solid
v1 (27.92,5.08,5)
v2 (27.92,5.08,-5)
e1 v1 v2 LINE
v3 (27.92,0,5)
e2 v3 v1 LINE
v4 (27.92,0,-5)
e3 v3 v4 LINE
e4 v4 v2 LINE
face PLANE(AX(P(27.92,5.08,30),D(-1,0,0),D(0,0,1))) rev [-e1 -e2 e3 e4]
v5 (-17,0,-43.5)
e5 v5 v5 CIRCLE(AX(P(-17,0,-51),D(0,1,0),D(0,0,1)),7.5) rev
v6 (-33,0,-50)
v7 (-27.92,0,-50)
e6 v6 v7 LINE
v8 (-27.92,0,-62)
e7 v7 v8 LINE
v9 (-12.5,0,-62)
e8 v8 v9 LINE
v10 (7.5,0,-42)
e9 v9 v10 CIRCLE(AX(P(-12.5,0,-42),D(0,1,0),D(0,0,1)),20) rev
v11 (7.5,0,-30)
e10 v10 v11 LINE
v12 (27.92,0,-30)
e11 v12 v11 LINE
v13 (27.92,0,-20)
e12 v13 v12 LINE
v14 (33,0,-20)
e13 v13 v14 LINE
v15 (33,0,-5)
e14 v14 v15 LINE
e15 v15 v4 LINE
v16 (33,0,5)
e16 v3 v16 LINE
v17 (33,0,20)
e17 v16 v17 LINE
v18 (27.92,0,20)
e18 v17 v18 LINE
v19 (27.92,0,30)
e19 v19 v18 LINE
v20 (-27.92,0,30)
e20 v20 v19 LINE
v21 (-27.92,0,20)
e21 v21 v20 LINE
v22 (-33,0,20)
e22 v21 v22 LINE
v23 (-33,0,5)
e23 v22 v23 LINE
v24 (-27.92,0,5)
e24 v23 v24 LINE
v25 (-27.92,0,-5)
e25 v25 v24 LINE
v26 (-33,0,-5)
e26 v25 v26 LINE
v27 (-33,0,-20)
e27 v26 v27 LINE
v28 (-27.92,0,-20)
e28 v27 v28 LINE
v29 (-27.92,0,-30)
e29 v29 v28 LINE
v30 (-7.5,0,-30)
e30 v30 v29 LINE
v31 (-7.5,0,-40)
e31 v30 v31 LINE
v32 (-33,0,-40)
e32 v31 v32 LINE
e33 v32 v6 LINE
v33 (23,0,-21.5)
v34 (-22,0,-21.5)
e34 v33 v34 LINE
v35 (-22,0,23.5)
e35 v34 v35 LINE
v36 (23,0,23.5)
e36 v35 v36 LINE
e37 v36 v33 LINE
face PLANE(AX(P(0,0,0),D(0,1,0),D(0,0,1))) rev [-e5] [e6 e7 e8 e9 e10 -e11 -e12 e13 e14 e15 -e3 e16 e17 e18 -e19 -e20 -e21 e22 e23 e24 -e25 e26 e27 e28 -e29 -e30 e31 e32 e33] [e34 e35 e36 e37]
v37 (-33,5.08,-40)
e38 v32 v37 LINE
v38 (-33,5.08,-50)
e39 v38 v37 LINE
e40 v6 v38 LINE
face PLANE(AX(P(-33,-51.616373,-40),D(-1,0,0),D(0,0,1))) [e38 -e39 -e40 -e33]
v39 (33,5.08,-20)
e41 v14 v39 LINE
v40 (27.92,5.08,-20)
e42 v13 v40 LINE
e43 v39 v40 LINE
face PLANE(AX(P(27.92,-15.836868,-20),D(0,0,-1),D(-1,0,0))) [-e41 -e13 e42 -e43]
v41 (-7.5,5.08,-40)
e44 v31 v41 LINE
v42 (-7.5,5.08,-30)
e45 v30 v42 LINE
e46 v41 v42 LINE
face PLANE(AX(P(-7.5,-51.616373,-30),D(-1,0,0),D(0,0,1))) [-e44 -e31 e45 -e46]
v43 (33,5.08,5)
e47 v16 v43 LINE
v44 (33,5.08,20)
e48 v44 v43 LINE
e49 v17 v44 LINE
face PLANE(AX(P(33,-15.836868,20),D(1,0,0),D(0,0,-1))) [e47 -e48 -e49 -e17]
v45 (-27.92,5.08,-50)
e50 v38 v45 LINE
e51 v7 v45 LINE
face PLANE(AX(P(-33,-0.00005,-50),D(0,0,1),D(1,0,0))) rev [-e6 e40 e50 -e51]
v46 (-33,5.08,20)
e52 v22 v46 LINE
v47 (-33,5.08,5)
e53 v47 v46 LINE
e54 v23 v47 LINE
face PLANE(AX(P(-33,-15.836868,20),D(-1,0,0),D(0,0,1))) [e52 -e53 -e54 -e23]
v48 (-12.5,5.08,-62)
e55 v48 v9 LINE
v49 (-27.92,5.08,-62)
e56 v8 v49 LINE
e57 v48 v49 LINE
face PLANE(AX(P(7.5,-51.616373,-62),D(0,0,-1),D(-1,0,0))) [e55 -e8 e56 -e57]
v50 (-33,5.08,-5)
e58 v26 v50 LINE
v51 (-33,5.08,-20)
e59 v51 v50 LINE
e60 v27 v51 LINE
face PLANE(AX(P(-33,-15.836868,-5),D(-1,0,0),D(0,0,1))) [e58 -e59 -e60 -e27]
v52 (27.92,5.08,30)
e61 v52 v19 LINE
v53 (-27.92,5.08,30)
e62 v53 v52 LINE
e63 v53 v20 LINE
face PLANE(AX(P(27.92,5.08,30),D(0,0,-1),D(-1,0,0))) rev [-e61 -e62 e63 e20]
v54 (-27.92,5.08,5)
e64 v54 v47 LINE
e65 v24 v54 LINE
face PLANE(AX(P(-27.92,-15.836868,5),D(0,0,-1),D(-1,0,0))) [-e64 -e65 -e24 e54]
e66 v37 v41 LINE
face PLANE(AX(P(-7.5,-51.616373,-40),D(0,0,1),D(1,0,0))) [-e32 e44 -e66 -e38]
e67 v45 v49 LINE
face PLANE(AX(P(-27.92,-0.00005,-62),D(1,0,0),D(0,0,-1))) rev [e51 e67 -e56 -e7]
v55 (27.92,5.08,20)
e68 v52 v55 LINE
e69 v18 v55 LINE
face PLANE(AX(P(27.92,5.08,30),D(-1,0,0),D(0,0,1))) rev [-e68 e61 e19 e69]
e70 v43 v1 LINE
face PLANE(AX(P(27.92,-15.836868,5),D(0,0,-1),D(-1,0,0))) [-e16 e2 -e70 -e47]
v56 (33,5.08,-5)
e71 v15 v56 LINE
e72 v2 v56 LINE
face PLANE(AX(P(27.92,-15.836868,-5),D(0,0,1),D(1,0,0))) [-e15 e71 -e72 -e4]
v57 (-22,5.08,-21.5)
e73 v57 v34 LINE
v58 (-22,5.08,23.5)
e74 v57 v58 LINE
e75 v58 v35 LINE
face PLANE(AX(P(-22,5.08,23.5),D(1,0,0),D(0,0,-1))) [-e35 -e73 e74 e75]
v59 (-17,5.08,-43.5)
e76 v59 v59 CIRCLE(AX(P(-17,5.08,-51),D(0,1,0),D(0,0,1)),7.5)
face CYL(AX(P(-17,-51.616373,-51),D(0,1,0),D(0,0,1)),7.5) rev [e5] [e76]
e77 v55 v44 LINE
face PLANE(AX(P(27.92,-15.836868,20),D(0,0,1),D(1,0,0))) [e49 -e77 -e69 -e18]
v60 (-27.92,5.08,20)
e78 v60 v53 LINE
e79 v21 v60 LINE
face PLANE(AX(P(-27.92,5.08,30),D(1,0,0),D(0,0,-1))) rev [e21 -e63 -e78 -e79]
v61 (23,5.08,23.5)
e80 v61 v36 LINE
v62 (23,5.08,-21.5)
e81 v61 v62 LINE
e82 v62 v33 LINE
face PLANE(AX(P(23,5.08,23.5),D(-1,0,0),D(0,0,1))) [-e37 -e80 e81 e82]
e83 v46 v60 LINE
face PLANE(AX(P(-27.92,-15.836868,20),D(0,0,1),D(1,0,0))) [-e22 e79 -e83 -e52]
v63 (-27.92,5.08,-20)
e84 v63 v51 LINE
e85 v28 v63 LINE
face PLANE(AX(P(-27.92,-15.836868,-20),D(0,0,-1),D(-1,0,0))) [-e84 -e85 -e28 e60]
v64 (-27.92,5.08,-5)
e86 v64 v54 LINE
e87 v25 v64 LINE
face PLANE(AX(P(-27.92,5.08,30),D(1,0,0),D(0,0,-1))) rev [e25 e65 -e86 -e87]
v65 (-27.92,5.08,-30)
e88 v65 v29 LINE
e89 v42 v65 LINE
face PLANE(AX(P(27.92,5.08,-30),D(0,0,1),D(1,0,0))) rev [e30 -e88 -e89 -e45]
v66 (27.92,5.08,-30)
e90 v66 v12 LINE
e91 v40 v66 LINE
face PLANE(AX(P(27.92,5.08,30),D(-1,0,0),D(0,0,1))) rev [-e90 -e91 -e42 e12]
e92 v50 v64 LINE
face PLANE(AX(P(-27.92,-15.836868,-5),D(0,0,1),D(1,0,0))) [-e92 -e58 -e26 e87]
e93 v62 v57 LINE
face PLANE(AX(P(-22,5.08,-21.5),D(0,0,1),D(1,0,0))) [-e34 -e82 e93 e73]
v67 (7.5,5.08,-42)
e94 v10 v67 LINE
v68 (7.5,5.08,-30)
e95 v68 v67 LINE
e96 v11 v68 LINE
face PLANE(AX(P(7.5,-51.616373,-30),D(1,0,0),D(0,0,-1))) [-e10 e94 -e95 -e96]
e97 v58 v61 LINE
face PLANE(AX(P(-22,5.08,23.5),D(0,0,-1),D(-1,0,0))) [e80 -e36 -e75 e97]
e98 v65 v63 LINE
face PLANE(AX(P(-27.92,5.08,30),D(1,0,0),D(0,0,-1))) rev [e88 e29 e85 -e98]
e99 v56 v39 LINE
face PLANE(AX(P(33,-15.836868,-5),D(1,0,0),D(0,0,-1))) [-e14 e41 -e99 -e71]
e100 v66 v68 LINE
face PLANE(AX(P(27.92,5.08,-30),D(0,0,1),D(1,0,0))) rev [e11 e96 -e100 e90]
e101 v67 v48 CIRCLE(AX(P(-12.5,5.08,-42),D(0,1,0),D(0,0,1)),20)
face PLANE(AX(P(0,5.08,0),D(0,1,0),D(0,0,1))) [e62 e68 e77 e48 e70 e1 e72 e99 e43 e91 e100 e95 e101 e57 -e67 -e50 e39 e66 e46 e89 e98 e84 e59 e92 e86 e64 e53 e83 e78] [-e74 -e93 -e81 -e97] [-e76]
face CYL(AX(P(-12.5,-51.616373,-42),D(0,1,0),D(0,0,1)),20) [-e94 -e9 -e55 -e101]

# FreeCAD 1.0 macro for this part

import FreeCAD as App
import Part
import Sketcher


def edges_at(feature, points):
    """Names of the edges that pass closest to the given points."""
    edges = feature.Shape.Edges
    near = lambda p: min(range(len(edges)), key=lambda i: edges[i].distToShape(Part.Vertex(*p))[0])
    return sorted({f"Edge{near(p) + 1}" for p in points})


def add_polygon(sketch, points):
    """Adds a closed chain of lines whose ends are joined by coincident constraints."""
    first, n = sketch.GeometryCount, len(points)
    for a, b in zip(points, points[1:] + points[:1]):
        sketch.addGeometry(Part.LineSegment(App.Vector(*a, 0), App.Vector(*b, 0)), False)
    for i in range(n):
        sketch.addConstraint(Sketcher.Constraint("Coincident", first + i, 2, first + (i + 1) % n, 1))

doc = App.newDocument("Part")
params = doc.addObject("Spreadsheet::Sheet", "Params")
for row, (alias, value) in enumerate([
    ("sketch1_width", "45 mm"),
    ("sketch1_height", "60 mm"),
    ("sketch1_width2", "55.84 mm"),
    ("pad1_length", "5.08 mm"),
    ("sketch2_height", "15 mm"),
    ("sketch2_width", "5.08 mm"),
    ("pad2_length", "5.08 mm"),
    ("sketch3_diameter", "15 mm"),
    ("sketch3_width", "15 mm"),
    ("sketch3_height", "32 mm"),
    ("sketch3_height2", "22 mm"),
    ("sketch3_width2", "40.5 mm"),
    ("pad3_length", "5.08 mm"),
    ("fillet_radius", "20 mm"),
    ("sketch4_height", "12 mm"),
    ("sketch4_width", "5.08 mm"),
], start=1):
    params.set(f"A{row}", alias)
    params.set(f"B{row}", "=" + value)
    params.setAlias(f"B{row}", alias)

body = doc.addObject("PartDesign::Body", "Body")

sketch1 = body.newObject("Sketcher::SketchObject", "Sketch")
sketch1.AttachmentSupport = (doc.getObject("XZ_Plane"), [""])
sketch1.MapMode = "FlatFace"
add_polygon(sketch1, [(-28, -30), (-28, 30), (28, 30), (28, -30)])
add_polygon(sketch1, [(23, 24), (-22, 24), (-22, -22), (23, -22)])
sketch1.addConstraint([
    Sketcher.Constraint("Vertical", 0),
    Sketcher.Constraint("Horizontal", 1),
    Sketcher.Constraint("Vertical", 2),
    Sketcher.Constraint("Horizontal", 3),
    Sketcher.Constraint("Horizontal", 4),
    Sketcher.Constraint("Vertical", 5),
    Sketcher.Constraint("Horizontal", 6),
    Sketcher.Constraint("Vertical", 7),
    Sketcher.Constraint("Symmetric", 0, 2, 2, 2, -1, 1),
    Sketcher.Constraint("Equal", 6, 5),
    Sketcher.Constraint("DistanceX", 4, 2, 4, 1, 45.0),
    Sketcher.Constraint("DistanceY", 0, 1, 0, 2, 60.0),
    Sketcher.Constraint("DistanceX", 4, 2, -1, 1, 22.0),
    Sketcher.Constraint("DistanceX", 1, 1, 1, 2, 55.84),
    Sketcher.Constraint("DistanceY", -1, 1, 4, 2, 23.5),
])
sketch1.setExpression("Constraints[18]", "Params.sketch1_width")
sketch1.setExpression("Constraints[19]", "Params.sketch1_height")
sketch1.setExpression("Constraints[21]", "Params.sketch1_width2")
pad1 = body.newObject("PartDesign::Pad", "Pad")
pad1.Profile = sketch1
pad1.setExpression("Length", "Params.pad1_length")
pad1.Reversed = True

sketch2 = body.newObject("Sketcher::SketchObject", "Sketch001")
sketch2.AttachmentSupport = (doc.getObject("XZ_Plane"), [""])
sketch2.MapMode = "FlatFace"
sketch2.AttachmentOffset = App.Placement(App.Vector(0, 0, -5.08), App.Rotation())
add_polygon(sketch2, [(-33, 5), (-33, 20), (-28, 20), (-28, 5)])
add_polygon(sketch2, [(28, 5), (28, 20), (33, 20), (33, 5)])
add_polygon(sketch2, [(-33, -20), (-33, -5), (-28, -5), (-28, -20)])
add_polygon(sketch2, [(28, -20), (28, -5), (33, -5), (33, -20)])
sketch2.addConstraint([
    Sketcher.Constraint("Vertical", 0),
    Sketcher.Constraint("Horizontal", 1),
    Sketcher.Constraint("Vertical", 2),
    Sketcher.Constraint("Horizontal", 3),
    Sketcher.Constraint("Vertical", 4),
    Sketcher.Constraint("Horizontal", 5),
    Sketcher.Constraint("Vertical", 6),
    Sketcher.Constraint("Horizontal", 7),
    Sketcher.Constraint("Vertical", 8),
    Sketcher.Constraint("Horizontal", 9),
    Sketcher.Constraint("Vertical", 10),
    Sketcher.Constraint("Horizontal", 11),
    Sketcher.Constraint("Vertical", 12),
    Sketcher.Constraint("Horizontal", 13),
    Sketcher.Constraint("Vertical", 14),
    Sketcher.Constraint("Horizontal", 15),
    Sketcher.Constraint("Symmetric", 6, 2, 8, 2, -1, 1),
    Sketcher.Constraint("Symmetric", 4, 2, 10, 2, -1, 1),
    Sketcher.Constraint("Symmetric", 2, 2, 12, 2, -1, 1),
    Sketcher.Constraint("Symmetric", 0, 2, 14, 2, -1, 1),
    Sketcher.Constraint("Symmetric", 1, 2, 4, 2, -2),
    Sketcher.Constraint("Symmetric", 3, 2, 6, 2, -2),
    Sketcher.Constraint("DistanceY", 0, 1, 0, 2, 15.0),
    Sketcher.Constraint("DistanceX", 0, 2, -1, 1, 33.0),
    Sketcher.Constraint("DistanceY", -1, 1, 0, 2, 20.0),
    Sketcher.Constraint("DistanceX", 1, 1, 1, 2, 5.08),
])
sketch2.setExpression("Constraints[38]", "Params.sketch2_height")
sketch2.setExpression("Constraints[41]", "Params.sketch2_width")
pad2 = body.newObject("PartDesign::Pad", "Pad001")
pad2.Profile = sketch2
pad2.setExpression("Length", "Params.pad2_length")

sketch3 = body.newObject("Sketcher::SketchObject", "Sketch002")
sketch3.AttachmentSupport = (doc.getObject("XZ_Plane"), [""])
sketch3.MapMode = "FlatFace"
sketch3.AttachmentOffset = App.Placement(App.Vector(0, 0, -5.08), App.Rotation())
add_polygon(sketch3, [(-8, -30), (8, -30), (8, -62), (-33, -62), (-33, -40), (-8, -40)])
sketch3.addGeometry(Part.Circle(App.Vector(-17, -51, 0), App.Vector(0, 0, 1), 8), False)
sketch3.addConstraint([
    Sketcher.Constraint("Horizontal", 0),
    Sketcher.Constraint("Vertical", 1),
    Sketcher.Constraint("Horizontal", 2),
    Sketcher.Constraint("Vertical", 3),
    Sketcher.Constraint("Horizontal", 4),
    Sketcher.Constraint("Vertical", 5),
    Sketcher.Constraint("Diameter", 6, 15.0),
    Sketcher.Constraint("DistanceX", 0, 1, 0, 2, 15.0),
    Sketcher.Constraint("DistanceY", 1, 2, 1, 1, 32.0),
    Sketcher.Constraint("DistanceY", 3, 1, 3, 2, 22.0),
    Sketcher.Constraint("DistanceX", 2, 2, 2, 1, 40.5),
    Sketcher.Constraint("DistanceX", 6, 3, -1, 1, 17.0),
    Sketcher.Constraint("DistanceY", 6, 3, -1, 1, 51.0),
    Sketcher.Constraint("DistanceY", 0, 2, -1, 1, 30.0),
    Sketcher.Constraint("DistanceX", 2, 2, -1, 1, 33.0),
])
sketch3.setExpression("Constraints[12]", "Params.sketch3_diameter")
sketch3.setExpression("Constraints[13]", "Params.sketch3_width")
sketch3.setExpression("Constraints[14]", "Params.sketch3_height")
sketch3.setExpression("Constraints[15]", "Params.sketch3_height2")
sketch3.setExpression("Constraints[16]", "Params.sketch3_width2")
pad3 = body.newObject("PartDesign::Pad", "Pad002")
pad3.Profile = sketch3
pad3.setExpression("Length", "Params.pad3_length")
doc.recompute()

fillet = body.newObject("PartDesign::Fillet", "Fillet")
fillet.Base = (pad3, edges_at(pad3, [(7.5, 2.54, -62)]))
fillet.setExpression("Radius", "Params.fillet_radius")

sketch4 = body.newObject("Sketcher::SketchObject", "Sketch003")
sketch4.AttachmentSupport = (doc.getObject("XZ_Plane"), [""])
sketch4.MapMode = "FlatFace"
sketch4.AttachmentOffset = App.Placement(App.Vector(0, 0, -5.08), App.Rotation())
add_polygon(sketch4, [(-33, -62), (-33, -50), (-28, -50), (-28, -62)])
sketch4.addConstraint([
    Sketcher.Constraint("Vertical", 0),
    Sketcher.Constraint("Horizontal", 1),
    Sketcher.Constraint("Vertical", 2),
    Sketcher.Constraint("Horizontal", 3),
    Sketcher.Constraint("DistanceY", 0, 1, 0, 2, 12.0),
    Sketcher.Constraint("DistanceX", 0, 2, -1, 1, 33.0),
    Sketcher.Constraint("DistanceY", 0, 2, -1, 1, 50.0),
    Sketcher.Constraint("DistanceX", 1, 1, 1, 2, 5.08),
])
sketch4.setExpression("Constraints[8]", "Params.sketch4_height")
sketch4.setExpression("Constraints[11]", "Params.sketch4_width")
pocket1 = body.newObject("PartDesign::Pocket", "Pocket")
pocket1.Profile = sketch4
pocket1.Type = "ThroughAll"
pocket1.Reversed = True

doc.recompute()
